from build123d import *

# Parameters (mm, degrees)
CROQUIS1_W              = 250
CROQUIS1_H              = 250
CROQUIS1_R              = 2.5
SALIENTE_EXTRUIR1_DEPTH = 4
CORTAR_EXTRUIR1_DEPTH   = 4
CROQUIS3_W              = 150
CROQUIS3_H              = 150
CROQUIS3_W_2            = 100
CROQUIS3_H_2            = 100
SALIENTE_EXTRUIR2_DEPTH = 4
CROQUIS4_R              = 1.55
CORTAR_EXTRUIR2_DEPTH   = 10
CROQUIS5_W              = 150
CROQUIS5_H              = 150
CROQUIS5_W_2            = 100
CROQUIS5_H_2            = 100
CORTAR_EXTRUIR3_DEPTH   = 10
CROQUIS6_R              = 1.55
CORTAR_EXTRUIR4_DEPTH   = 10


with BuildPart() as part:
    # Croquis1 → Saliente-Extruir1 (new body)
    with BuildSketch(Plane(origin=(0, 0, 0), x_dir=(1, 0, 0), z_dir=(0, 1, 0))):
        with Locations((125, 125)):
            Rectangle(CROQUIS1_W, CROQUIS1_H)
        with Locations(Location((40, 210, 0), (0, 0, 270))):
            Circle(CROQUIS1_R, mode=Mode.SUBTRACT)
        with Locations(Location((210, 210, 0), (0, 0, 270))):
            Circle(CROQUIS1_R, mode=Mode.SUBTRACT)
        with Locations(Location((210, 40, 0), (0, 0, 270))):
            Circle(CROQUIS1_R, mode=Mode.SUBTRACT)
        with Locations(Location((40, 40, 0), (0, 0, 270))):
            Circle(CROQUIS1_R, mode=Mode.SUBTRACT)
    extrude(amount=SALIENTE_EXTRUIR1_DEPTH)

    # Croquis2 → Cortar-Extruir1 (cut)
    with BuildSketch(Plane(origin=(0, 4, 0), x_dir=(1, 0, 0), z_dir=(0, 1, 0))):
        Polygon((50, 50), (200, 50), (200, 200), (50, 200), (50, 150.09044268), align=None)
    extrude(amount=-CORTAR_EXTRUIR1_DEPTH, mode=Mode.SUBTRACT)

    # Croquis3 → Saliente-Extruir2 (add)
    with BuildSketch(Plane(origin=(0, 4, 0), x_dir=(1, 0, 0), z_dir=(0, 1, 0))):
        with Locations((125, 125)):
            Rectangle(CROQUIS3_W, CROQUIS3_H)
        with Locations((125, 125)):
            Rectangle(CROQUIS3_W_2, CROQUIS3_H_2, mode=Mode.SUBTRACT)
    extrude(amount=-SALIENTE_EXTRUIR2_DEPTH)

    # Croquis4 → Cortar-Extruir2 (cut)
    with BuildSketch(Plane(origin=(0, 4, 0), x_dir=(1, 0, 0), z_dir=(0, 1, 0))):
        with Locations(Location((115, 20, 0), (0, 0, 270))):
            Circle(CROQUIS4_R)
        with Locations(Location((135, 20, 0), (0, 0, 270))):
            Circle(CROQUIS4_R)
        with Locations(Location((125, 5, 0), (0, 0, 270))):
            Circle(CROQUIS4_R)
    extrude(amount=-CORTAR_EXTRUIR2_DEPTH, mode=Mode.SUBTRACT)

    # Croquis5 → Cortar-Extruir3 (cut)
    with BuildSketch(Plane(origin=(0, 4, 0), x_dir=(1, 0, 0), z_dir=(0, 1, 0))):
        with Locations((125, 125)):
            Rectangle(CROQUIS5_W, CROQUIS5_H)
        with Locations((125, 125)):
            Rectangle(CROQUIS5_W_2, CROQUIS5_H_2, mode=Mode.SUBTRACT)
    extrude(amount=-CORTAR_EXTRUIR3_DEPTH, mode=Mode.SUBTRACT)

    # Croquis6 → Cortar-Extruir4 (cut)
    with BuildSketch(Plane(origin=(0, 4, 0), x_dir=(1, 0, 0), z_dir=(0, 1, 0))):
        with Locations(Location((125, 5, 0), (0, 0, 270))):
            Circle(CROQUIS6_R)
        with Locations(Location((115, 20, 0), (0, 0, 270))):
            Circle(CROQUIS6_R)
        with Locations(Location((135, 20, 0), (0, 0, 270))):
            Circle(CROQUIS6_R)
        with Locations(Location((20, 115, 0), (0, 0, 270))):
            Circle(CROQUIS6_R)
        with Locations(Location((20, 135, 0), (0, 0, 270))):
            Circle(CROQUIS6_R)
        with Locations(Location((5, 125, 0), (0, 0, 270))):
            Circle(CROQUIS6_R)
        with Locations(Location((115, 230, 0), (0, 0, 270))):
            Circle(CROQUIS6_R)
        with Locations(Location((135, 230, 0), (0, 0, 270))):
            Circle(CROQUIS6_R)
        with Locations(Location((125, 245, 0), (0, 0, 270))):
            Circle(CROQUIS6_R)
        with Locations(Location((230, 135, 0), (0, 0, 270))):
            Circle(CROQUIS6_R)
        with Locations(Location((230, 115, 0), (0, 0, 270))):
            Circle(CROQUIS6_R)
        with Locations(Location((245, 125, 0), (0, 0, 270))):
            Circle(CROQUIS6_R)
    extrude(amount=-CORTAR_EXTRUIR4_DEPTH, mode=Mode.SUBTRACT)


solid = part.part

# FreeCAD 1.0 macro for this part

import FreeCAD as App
import Part
import Sketcher
from FreeCAD import Vector
Q = App.Units.Quantity

doc = App.newDocument("Part")
body = doc.addObject("PartDesign::Body", "Body")

# Sketch on XZ plane
sketch1 = body.newObject("Sketcher::SketchObject", "Sketch")
sketch1.AttachmentSupport = (doc.getObject("XZ_Plane"), [""])
sketch1.MapMode = "FlatFace"
sketch1.addGeometry([
    Part.LineSegment(Vector(0, -250, 0), Vector(0, 0, 0)),  # 0
    Part.LineSegment(Vector(0, 0, 0), Vector(250, 0, 0)),  # 1
    Part.LineSegment(Vector(250, 0, 0), Vector(250, -250, 0)),  # 2
    Part.LineSegment(Vector(250, -250, 0), Vector(0, -250, 0)),  # 3
    Part.Circle(Vector(40, -40, 0), Vector(0, 0, 1), 2.5),  # 4
    Part.Circle(Vector(210, -40, 0), Vector(0, 0, 1), 2.5),  # 5
    Part.Circle(Vector(40, -210, 0), Vector(0, 0, 1), 2.5),  # 6
    Part.Circle(Vector(210, -210, 0), Vector(0, 0, 1), 2.5),  # 7
], False)
sketch1.addConstraint([
    Sketcher.Constraint("Coincident", 0, 2, 1, 1),
    Sketcher.Constraint("Coincident", 1, 2, 2, 1),
    Sketcher.Constraint("Coincident", 2, 2, 3, 1),
    Sketcher.Constraint("Coincident", 3, 2, 0, 1),
    Sketcher.Constraint("Vertical", 0),
    Sketcher.Constraint("Horizontal", 1),
    Sketcher.Constraint("Vertical", 2),
    Sketcher.Constraint("Horizontal", 3),
    Sketcher.Constraint("Coincident", 0, 2, -1, 1),
    Sketcher.Constraint("Equal", 4, 5),
    Sketcher.Constraint("Equal", 5, 6),
    Sketcher.Constraint("Equal", 6, 7),
    Sketcher.Constraint("Horizontal", 4, 3, 5, 3),
    Sketcher.Constraint("Horizontal", 6, 3, 7, 3),
    Sketcher.Constraint("Vertical", 4, 3, 6, 3),
    Sketcher.Constraint("Vertical", 5, 3, 7, 3),
    Sketcher.Constraint("Equal", 3, 0),
    Sketcher.Constraint("Diameter", 4, Q("5 mm")),
    Sketcher.Constraint("DistanceX", 1, 1, 1, 2, Q("250 mm")),
    Sketcher.Constraint("DistanceX", -1, 1, 4, 3, Q("40 mm")),
    Sketcher.Constraint("DistanceY", 4, 3, -1, 1, Q("40 mm")),
    Sketcher.Constraint("DistanceX", -1, 1, 5, 3, Q("210 mm")),
    Sketcher.Constraint("DistanceY", 6, 3, -1, 1, Q("210 mm")),
])
pad1 = body.newObject("PartDesign::Pad", "Pad")
pad1.Profile = sketch1
pad1.Length = 4
pad1.Reversed = True

# Sketch on XZ plane
sketch2 = body.newObject("Sketcher::SketchObject", "Sketch001")
sketch2.AttachmentSupport = (doc.getObject("XZ_Plane"), [""])
sketch2.MapMode = "FlatFace"
sketch2.AttachmentOffset = App.Placement(Vector(0, 0, -4), App.Rotation())
sketch2.addGeometry([
    Part.LineSegment(Vector(50, -50, 0), Vector(200, -50, 0)),
    Part.LineSegment(Vector(200, -50, 0), Vector(200, -200, 0)),
    Part.LineSegment(Vector(200, -200, 0), Vector(50, -200, 0)),
    Part.LineSegment(Vector(50, -200, 0), Vector(50, -50, 0)),
], False)
sketch2.addConstraint([
    Sketcher.Constraint("Coincident", 0, 2, 1, 1),
    Sketcher.Constraint("Coincident", 1, 2, 2, 1),
    Sketcher.Constraint("Coincident", 2, 2, 3, 1),
    Sketcher.Constraint("Coincident", 3, 2, 0, 1),
    Sketcher.Constraint("Horizontal", 0),
    Sketcher.Constraint("Vertical", 1),
    Sketcher.Constraint("Horizontal", 2),
    Sketcher.Constraint("Vertical", 3),
    Sketcher.Constraint("Equal", 2, 1),
    Sketcher.Constraint("DistanceX", 0, 1, 0, 2, Q("150 mm")),
    Sketcher.Constraint("DistanceX", -1, 1, 0, 2, Q("200 mm")),
    Sketcher.Constraint("DistanceY", 0, 2, -1, 1, Q("50 mm")),
])
pocket1 = body.newObject("PartDesign::Pocket", "Pocket")
pocket1.Profile = sketch2
pocket1.Length = 4
pocket1.Reversed = True

# Sketch on XZ plane
sketch3 = body.newObject("Sketcher::SketchObject", "Sketch002")
sketch3.AttachmentSupport = (doc.getObject("XZ_Plane"), [""])
sketch3.MapMode = "FlatFace"
sketch3.AttachmentOffset = App.Placement(Vector(0, 0, -4), App.Rotation())
sketch3.addGeometry([
    Part.LineSegment(Vector(50, -200, 0), Vector(50, -50, 0)),  # 0
    Part.LineSegment(Vector(50, -50, 0), Vector(200, -50, 0)),  # 1
    Part.LineSegment(Vector(200, -50, 0), Vector(200, -200, 0)),  # 2
    Part.LineSegment(Vector(200, -200, 0), Vector(50, -200, 0)),  # 3
    Part.LineSegment(Vector(175, -75, 0), Vector(75, -75, 0)),  # 4
    Part.LineSegment(Vector(75, -75, 0), Vector(75, -175, 0)),  # 5
    Part.LineSegment(Vector(75, -175, 0), Vector(175, -175, 0)),  # 6
    Part.LineSegment(Vector(175, -175, 0), Vector(175, -75, 0)),  # 7
], False)
sketch3.addConstraint([
    Sketcher.Constraint("Coincident", 0, 2, 1, 1),
    Sketcher.Constraint("Coincident", 1, 2, 2, 1),
    Sketcher.Constraint("Coincident", 2, 2, 3, 1),
    Sketcher.Constraint("Coincident", 3, 2, 0, 1),
    Sketcher.Constraint("Coincident", 4, 2, 5, 1),
    Sketcher.Constraint("Coincident", 5, 2, 6, 1),
    Sketcher.Constraint("Coincident", 6, 2, 7, 1),
    Sketcher.Constraint("Coincident", 7, 2, 4, 1),
    Sketcher.Constraint("Vertical", 0),
    Sketcher.Constraint("Horizontal", 1),
    Sketcher.Constraint("Vertical", 2),
    Sketcher.Constraint("Horizontal", 3),
    Sketcher.Constraint("Horizontal", 4),
    Sketcher.Constraint("Vertical", 5),
    Sketcher.Constraint("Horizontal", 6),
    Sketcher.Constraint("Vertical", 7),
    Sketcher.Constraint("Equal", 3, 0),
    Sketcher.Constraint("Equal", 6, 5),
    Sketcher.Constraint("DistanceX", 1, 1, 1, 2, Q("150 mm")),
    Sketcher.Constraint("DistanceX", 4, 2, 4, 1, Q("100 mm")),
    Sketcher.Constraint("DistanceX", -1, 1, 0, 2, Q("50 mm")),
    Sketcher.Constraint("DistanceY", 0, 2, -1, 1, Q("50 mm")),
    Sketcher.Constraint("DistanceX", -1, 1, 4, 2, Q("75 mm")),
    Sketcher.Constraint("DistanceY", 4, 2, -1, 1, Q("75 mm")),
])
pad2 = body.newObject("PartDesign::Pad", "Pad001")
pad2.Profile = sketch3
pad2.Length = 4

# Sketch on XZ plane
sketch4 = body.newObject("Sketcher::SketchObject", "Sketch003")
sketch4.AttachmentSupport = (doc.getObject("XZ_Plane"), [""])
sketch4.MapMode = "FlatFace"
sketch4.AttachmentOffset = App.Placement(Vector(0, 0, -4), App.Rotation())
sketch4.addGeometry([
    Part.Circle(Vector(115, -20, 0), Vector(0, 0, 1), 1.55),
    Part.Circle(Vector(135, -20, 0), Vector(0, 0, 1), 1.55),
    Part.Circle(Vector(125, -5, 0), Vector(0, 0, 1), 1.55),
], False)
sketch4.addConstraint([
    Sketcher.Constraint("Equal", 0, 1),
    Sketcher.Constraint("Equal", 1, 2),
    Sketcher.Constraint("Horizontal", 0, 3, 1, 3),
    Sketcher.Constraint("Diameter", 0, Q("3.1 mm")),
    Sketcher.Constraint("DistanceX", -1, 1, 0, 3, Q("115 mm")),
    Sketcher.Constraint("DistanceY", 0, 3, -1, 1, Q("20 mm")),
    Sketcher.Constraint("DistanceX", -1, 1, 1, 3, Q("135 mm")),
    Sketcher.Constraint("DistanceX", -1, 1, 2, 3, Q("125 mm")),
    Sketcher.Constraint("DistanceY", 2, 3, -1, 1, Q("5 mm")),
])
pocket2 = body.newObject("PartDesign::Pocket", "Pocket001")
pocket2.Profile = sketch4
pocket2.Length = 10
pocket2.Reversed = True

# Sketch on XZ plane
sketch5 = body.newObject("Sketcher::SketchObject", "Sketch004")
sketch5.AttachmentSupport = (doc.getObject("XZ_Plane"), [""])
sketch5.MapMode = "FlatFace"
sketch5.AttachmentOffset = App.Placement(Vector(0, 0, -4), App.Rotation())
sketch5.addGeometry([
    Part.LineSegment(Vector(50, -200, 0), Vector(50, -50, 0)),  # 0
    Part.LineSegment(Vector(50, -50, 0), Vector(200, -50, 0)),  # 1
    Part.LineSegment(Vector(200, -50, 0), Vector(200, -200, 0)),  # 2
    Part.LineSegment(Vector(200, -200, 0), Vector(50, -200, 0)),  # 3
    Part.LineSegment(Vector(175, -75, 0), Vector(75, -75, 0)),  # 4
    Part.LineSegment(Vector(75, -75, 0), Vector(75, -175, 0)),  # 5
    Part.LineSegment(Vector(75, -175, 0), Vector(175, -175, 0)),  # 6
    Part.LineSegment(Vector(175, -175, 0), Vector(175, -75, 0)),  # 7
], False)
sketch5.addConstraint([
    Sketcher.Constraint("Coincident", 0, 2, 1, 1),
    Sketcher.Constraint("Coincident", 1, 2, 2, 1),
    Sketcher.Constraint("Coincident", 2, 2, 3, 1),
    Sketcher.Constraint("Coincident", 3, 2, 0, 1),
    Sketcher.Constraint("Coincident", 4, 2, 5, 1),
    Sketcher.Constraint("Coincident", 5, 2, 6, 1),
    Sketcher.Constraint("Coincident", 6, 2, 7, 1),
    Sketcher.Constraint("Coincident", 7, 2, 4, 1),
    Sketcher.Constraint("Vertical", 0),
    Sketcher.Constraint("Horizontal", 1),
    Sketcher.Constraint("Vertical", 2),
    Sketcher.Constraint("Horizontal", 3),
    Sketcher.Constraint("Horizontal", 4),
    Sketcher.Constraint("Vertical", 5),
    Sketcher.Constraint("Horizontal", 6),
    Sketcher.Constraint("Vertical", 7),
    Sketcher.Constraint("Equal", 3, 0),
    Sketcher.Constraint("Equal", 6, 5),
    Sketcher.Constraint("DistanceX", 1, 1, 1, 2, Q("150 mm")),
    Sketcher.Constraint("DistanceX", 4, 2, 4, 1, Q("100 mm")),
    Sketcher.Constraint("DistanceX", -1, 1, 0, 2, Q("50 mm")),
    Sketcher.Constraint("DistanceY", 0, 2, -1, 1, Q("50 mm")),
    Sketcher.Constraint("DistanceX", -1, 1, 4, 2, Q("75 mm")),
    Sketcher.Constraint("DistanceY", 4, 2, -1, 1, Q("75 mm")),
])
pocket3 = body.newObject("PartDesign::Pocket", "Pocket002")
pocket3.Profile = sketch5
pocket3.Length = 10
pocket3.Reversed = True

# Sketch on XZ plane
sketch6 = body.newObject("Sketcher::SketchObject", "Sketch005")
sketch6.AttachmentSupport = (doc.getObject("XZ_Plane"), [""])
sketch6.MapMode = "FlatFace"
sketch6.AttachmentOffset = App.Placement(Vector(0, 0, -4), App.Rotation())
sketch6.addGeometry([
    Part.Circle(Vector(125, -5, 0), Vector(0, 0, 1), 1.55),  # 0
    Part.Circle(Vector(115, -20, 0), Vector(0, 0, 1), 1.55),  # 1
    Part.Circle(Vector(135, -20, 0), Vector(0, 0, 1), 1.55),  # 2
    Part.Circle(Vector(20, -115, 0), Vector(0, 0, 1), 1.55),  # 3
    Part.Circle(Vector(20, -135, 0), Vector(0, 0, 1), 1.55),  # 4
    Part.Circle(Vector(5, -125, 0), Vector(0, 0, 1), 1.55),  # 5
    Part.Circle(Vector(115, -230, 0), Vector(0, 0, 1), 1.55),  # 6
    Part.Circle(Vector(135, -230, 0), Vector(0, 0, 1), 1.55),  # 7
    Part.Circle(Vector(125, -245, 0), Vector(0, 0, 1), 1.55),  # 8
    Part.Circle(Vector(230, -135, 0), Vector(0, 0, 1), 1.55),  # 9
    Part.Circle(Vector(230, -115, 0), Vector(0, 0, 1), 1.55),  # 10
    Part.Circle(Vector(245, -125, 0), Vector(0, 0, 1), 1.55),  # 11
], False)
sketch6.addConstraint([
    Sketcher.Constraint("Equal", 0, 1),
    Sketcher.Constraint("Equal", 1, 2),
    Sketcher.Constraint("Equal", 2, 3),
    Sketcher.Constraint("Equal", 3, 4),
    Sketcher.Constraint("Equal", 4, 5),
    Sketcher.Constraint("Equal", 5, 6),
    Sketcher.Constraint("Equal", 6, 7),
    Sketcher.Constraint("Equal", 7, 8),
    Sketcher.Constraint("Equal", 8, 9),
    Sketcher.Constraint("Equal", 9, 10),
    Sketcher.Constraint("Equal", 10, 11),
    Sketcher.Constraint("Horizontal", 1, 3, 2, 3),
    Sketcher.Constraint("Horizontal", 6, 3, 7, 3),
    Sketcher.Constraint("Horizontal", 4, 3, 9, 3),
    Sketcher.Constraint("Horizontal", 3, 3, 10, 3),
    Sketcher.Constraint("Horizontal", 5, 3, 11, 3),
    Sketcher.Constraint("Vertical", 3, 3, 4, 3),
    Sketcher.Constraint("Vertical", 1, 3, 6, 3),
    Sketcher.Constraint("Vertical", 2, 3, 7, 3),
    Sketcher.Constraint("Vertical", 0, 3, 8, 3),
    Sketcher.Constraint("Vertical", 9, 3, 10, 3),
    Sketcher.Constraint("Diameter", 0, Q("3.1 mm")),
    Sketcher.Constraint("DistanceX", -1, 1, 0, 3, Q("125 mm")),
    Sketcher.Constraint("DistanceY", 0, 3, -1, 1, Q("5 mm")),
    Sketcher.Constraint("DistanceX", -1, 1, 1, 3, Q("115 mm")),
    Sketcher.Constraint("DistanceY", 1, 3, -1, 1, Q("20 mm")),
    Sketcher.Constraint("DistanceX", -1, 1, 2, 3, Q("135 mm")),
    Sketcher.Constraint("DistanceX", -1, 1, 3, 3, Q("20 mm")),
    Sketcher.Constraint("DistanceY", 3, 3, -1, 1, Q("115 mm")),
    Sketcher.Constraint("DistanceY", 4, 3, -1, 1, Q("135 mm")),
    Sketcher.Constraint("DistanceX", -1, 1, 5, 3, Q("5 mm")),
    Sketcher.Constraint("DistanceY", 5, 3, -1, 1, Q("125 mm")),
    Sketcher.Constraint("DistanceY", 6, 3, -1, 1, Q("230 mm")),
    Sketcher.Constraint("DistanceY", 8, 3, -1, 1, Q("245 mm")),
    Sketcher.Constraint("DistanceX", -1, 1, 9, 3, Q("230 mm")),
    Sketcher.Constraint("DistanceX", -1, 1, 11, 3, Q("245 mm")),
])
pocket4 = body.newObject("PartDesign::Pocket", "Pocket003")
pocket4.Profile = sketch6
pocket4.Length = 10
pocket4.Reversed = True

doc.recompute()
